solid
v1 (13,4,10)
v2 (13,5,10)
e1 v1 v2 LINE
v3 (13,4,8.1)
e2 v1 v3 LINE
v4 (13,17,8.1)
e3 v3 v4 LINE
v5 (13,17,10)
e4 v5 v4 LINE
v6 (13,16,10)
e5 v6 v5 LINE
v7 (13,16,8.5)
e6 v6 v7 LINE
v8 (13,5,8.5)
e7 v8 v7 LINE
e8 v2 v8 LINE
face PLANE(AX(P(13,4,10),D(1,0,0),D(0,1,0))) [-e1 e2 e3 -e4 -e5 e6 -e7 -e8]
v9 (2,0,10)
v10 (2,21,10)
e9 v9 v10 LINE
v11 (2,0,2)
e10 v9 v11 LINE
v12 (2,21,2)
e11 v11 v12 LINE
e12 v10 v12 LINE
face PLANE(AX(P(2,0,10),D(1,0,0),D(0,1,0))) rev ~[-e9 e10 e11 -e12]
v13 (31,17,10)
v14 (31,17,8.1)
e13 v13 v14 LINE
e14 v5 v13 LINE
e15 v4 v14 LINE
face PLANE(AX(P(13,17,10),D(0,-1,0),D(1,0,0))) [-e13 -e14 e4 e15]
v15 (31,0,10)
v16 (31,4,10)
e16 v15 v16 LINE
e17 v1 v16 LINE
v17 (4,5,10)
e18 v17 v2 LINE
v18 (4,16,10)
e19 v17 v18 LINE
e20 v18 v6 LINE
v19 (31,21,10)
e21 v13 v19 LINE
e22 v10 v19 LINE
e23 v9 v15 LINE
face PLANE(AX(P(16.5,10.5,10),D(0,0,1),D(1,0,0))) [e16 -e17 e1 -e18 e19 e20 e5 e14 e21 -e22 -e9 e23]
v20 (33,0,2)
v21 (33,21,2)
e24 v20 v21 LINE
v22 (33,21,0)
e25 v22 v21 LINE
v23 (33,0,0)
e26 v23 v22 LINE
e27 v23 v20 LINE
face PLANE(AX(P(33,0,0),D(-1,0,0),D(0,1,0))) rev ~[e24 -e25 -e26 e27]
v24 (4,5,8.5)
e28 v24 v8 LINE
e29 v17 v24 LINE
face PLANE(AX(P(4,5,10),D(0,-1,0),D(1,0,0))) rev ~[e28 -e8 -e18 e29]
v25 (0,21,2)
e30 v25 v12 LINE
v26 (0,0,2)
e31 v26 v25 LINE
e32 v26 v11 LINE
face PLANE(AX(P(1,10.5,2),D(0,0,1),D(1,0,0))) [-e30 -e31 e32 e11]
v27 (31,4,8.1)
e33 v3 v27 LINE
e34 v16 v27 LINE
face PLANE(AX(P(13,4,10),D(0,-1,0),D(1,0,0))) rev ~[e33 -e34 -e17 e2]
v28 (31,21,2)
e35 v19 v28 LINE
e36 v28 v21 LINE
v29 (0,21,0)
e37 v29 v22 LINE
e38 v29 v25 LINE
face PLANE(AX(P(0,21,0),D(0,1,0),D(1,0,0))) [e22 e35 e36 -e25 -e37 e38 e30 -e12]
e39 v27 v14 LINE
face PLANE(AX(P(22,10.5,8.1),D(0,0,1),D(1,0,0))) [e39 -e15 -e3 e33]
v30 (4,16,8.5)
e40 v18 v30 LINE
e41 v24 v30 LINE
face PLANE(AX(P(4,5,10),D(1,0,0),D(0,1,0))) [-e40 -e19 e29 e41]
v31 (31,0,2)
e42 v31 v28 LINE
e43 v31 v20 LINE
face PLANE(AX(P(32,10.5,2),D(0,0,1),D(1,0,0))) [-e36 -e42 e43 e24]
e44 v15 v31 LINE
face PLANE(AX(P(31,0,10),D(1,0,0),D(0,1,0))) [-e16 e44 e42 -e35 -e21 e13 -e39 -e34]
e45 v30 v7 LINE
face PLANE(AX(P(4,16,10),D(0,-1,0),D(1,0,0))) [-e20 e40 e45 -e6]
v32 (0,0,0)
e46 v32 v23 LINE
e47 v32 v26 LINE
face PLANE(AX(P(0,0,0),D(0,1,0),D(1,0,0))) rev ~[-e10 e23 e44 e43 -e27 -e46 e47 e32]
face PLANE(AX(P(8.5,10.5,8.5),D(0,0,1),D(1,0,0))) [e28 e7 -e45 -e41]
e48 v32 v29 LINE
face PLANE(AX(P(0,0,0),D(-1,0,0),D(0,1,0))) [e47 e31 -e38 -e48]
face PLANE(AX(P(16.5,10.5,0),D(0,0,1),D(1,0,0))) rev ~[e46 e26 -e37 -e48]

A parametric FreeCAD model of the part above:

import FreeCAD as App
import Part
import Sketcher


def add_polygon(sketch, points):
    """Adds a closed chain of lines whose ends are joined by coincident constraints."""
    first, n = sketch.GeometryCount, len(points)
    for a, b in zip(points, points[1:] + points[:1]):
        sketch.addGeometry(Part.LineSegment(App.Vector(*a, 0), App.Vector(*b, 0)), False)
    for i in range(n):
        sketch.addConstraint(Sketcher.Constraint("Coincident", first + i, 2, first + (i + 1) % n, 1))

doc = App.newDocument("Part")
body = doc.addObject("PartDesign::Body", "Body")

sketch1 = doc.addObject("Sketcher::SketchObject", "Sketch")
body.addObject(sketch1)
sketch1.AttachmentSupport = (doc.XY_Plane, [""])
sketch1.MapMode = "FlatFace"
add_polygon(sketch1, [(0, 21), (0, 0), (33, 0), (33, 21)])
sketch1.addConstraint([
    Sketcher.Constraint("Vertical", 0),
    Sketcher.Constraint("Horizontal", 1),
    Sketcher.Constraint("Vertical", 2),
    Sketcher.Constraint("Horizontal", 3),
    Sketcher.Constraint("Coincident", 0, 2, -1, 1),
    Sketcher.Constraint("DistanceX", 1, 1, 1, 2, 33.0),
    Sketcher.Constraint("DistanceY", 0, 2, 0, 1, 21.0),
])
pad1 = doc.addObject("PartDesign::Pad", "Pad")
body.addObject(pad1)
pad1.Profile = sketch1
pad1.Length = 10

sketch2 = doc.addObject("Sketcher::SketchObject", "Sketch001")
body.addObject(sketch2)
sketch2.AttachmentSupport = (doc.XY_Plane, [""])
sketch2.MapMode = "FlatFace"
sketch2.AttachmentOffset = App.Placement(App.Vector(0, 0, 10), App.Rotation())
add_polygon(sketch2, [(0, 21), (0, 0), (2, 0), (2, 21)])
add_polygon(sketch2, [(31, 21), (31, 0), (33, 0), (33, 21)])
sketch2.addConstraint([
    Sketcher.Constraint("Vertical", 0),
    Sketcher.Constraint("Horizontal", 1),
    Sketcher.Constraint("Vertical", 2),
    Sketcher.Constraint("Horizontal", 3),
    Sketcher.Constraint("Vertical", 4),
    Sketcher.Constraint("Horizontal", 5),
    Sketcher.Constraint("Vertical", 6),
    Sketcher.Constraint("Horizontal", 7),
    Sketcher.Constraint("Coincident", 0, 2, -1, 1),
    Sketcher.Constraint("PointOnObject", 4, 2, -1),
    Sketcher.Constraint("Horizontal", 3, 2, 6, 2),
    Sketcher.Constraint("Equal", 3, 5),
    Sketcher.Constraint("DistanceX", 1, 1, 1, 2, 2.0),
    Sketcher.Constraint("DistanceY", 0, 2, 0, 1, 21.0),
    Sketcher.Constraint("DistanceX", -1, 1, 4, 2, 31.0),
])
pocket1 = doc.addObject("PartDesign::Pocket", "Pocket")
body.addObject(pocket1)
pocket1.Profile = sketch2
pocket1.Length = 8

sketch3 = doc.addObject("Sketcher::SketchObject", "Sketch002")
body.addObject(sketch3)
sketch3.AttachmentSupport = (doc.XY_Plane, [""])
sketch3.MapMode = "FlatFace"
sketch3.AttachmentOffset = App.Placement(App.Vector(0, 0, 10), App.Rotation())
add_polygon(sketch3, [(4, 16), (4, 5), (13, 5), (13, 16)])
sketch3.addConstraint([
    Sketcher.Constraint("Vertical", 0),
    Sketcher.Constraint("Horizontal", 1),
    Sketcher.Constraint("Vertical", 2),
    Sketcher.Constraint("Horizontal", 3),
    Sketcher.Constraint("DistanceX", 1, 1, 1, 2, 9.0),
    Sketcher.Constraint("DistanceY", 0, 2, 0, 1, 11.0),
    Sketcher.Constraint("DistanceX", -1, 1, 0, 2, 4.0),
    Sketcher.Constraint("DistanceY", -1, 1, 0, 2, 5.0),
])
pocket2 = doc.addObject("PartDesign::Pocket", "Pocket001")
body.addObject(pocket2)
pocket2.Profile = sketch3
pocket2.Length = 1.5

sketch4 = doc.addObject("Sketcher::SketchObject", "Sketch003")
body.addObject(sketch4)
sketch4.AttachmentSupport = (doc.XY_Plane, [""])
sketch4.MapMode = "FlatFace"
sketch4.AttachmentOffset = App.Placement(App.Vector(0, 0, 10), App.Rotation())
add_polygon(sketch4, [(13, 17), (13, 4), (31, 4), (31, 17)])
sketch4.addConstraint([
    Sketcher.Constraint("Vertical", 0),
    Sketcher.Constraint("Horizontal", 1),
    Sketcher.Constraint("Vertical", 2),
    Sketcher.Constraint("Horizontal", 3),
    Sketcher.Constraint("DistanceX", 1, 1, 1, 2, 18.0),
    Sketcher.Constraint("DistanceY", 0, 2, 0, 1, 13.0),
    Sketcher.Constraint("DistanceX", -1, 1, 0, 2, 13.0),
    Sketcher.Constraint("DistanceY", -1, 1, 0, 2, 4.0),
])
pocket3 = doc.addObject("PartDesign::Pocket", "Pocket002")
body.addObject(pocket3)
pocket3.Profile = sketch4
pocket3.Length = 1.9

doc.recompute()
